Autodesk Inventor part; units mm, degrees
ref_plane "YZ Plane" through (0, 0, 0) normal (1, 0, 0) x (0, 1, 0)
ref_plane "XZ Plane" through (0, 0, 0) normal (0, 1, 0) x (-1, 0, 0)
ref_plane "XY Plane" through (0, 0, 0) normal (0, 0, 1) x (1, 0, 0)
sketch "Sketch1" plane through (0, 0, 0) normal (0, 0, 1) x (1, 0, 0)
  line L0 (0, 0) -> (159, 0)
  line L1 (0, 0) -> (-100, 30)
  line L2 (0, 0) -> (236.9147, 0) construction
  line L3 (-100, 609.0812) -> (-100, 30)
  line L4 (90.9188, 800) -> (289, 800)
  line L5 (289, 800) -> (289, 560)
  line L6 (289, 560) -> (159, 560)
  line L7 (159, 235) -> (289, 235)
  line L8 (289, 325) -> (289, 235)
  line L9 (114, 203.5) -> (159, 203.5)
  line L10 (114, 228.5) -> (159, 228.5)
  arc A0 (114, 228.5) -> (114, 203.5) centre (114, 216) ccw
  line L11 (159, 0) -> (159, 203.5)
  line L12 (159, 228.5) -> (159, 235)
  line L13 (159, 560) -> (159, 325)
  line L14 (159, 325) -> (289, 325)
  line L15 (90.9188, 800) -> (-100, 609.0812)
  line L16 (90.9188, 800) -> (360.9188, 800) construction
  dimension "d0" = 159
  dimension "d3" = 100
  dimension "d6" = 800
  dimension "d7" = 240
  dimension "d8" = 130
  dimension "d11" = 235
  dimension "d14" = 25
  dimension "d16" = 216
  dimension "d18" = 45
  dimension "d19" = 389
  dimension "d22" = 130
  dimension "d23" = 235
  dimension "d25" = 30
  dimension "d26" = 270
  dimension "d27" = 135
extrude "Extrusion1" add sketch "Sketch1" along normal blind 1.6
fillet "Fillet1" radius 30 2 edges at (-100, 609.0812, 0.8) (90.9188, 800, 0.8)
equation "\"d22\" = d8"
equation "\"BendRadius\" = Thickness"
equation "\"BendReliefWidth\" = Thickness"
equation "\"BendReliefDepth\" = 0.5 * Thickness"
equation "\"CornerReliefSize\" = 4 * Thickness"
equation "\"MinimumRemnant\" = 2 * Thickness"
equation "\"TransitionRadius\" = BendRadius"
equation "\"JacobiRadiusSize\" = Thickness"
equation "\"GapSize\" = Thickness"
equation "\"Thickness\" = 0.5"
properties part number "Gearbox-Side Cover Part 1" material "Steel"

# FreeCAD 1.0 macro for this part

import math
import FreeCAD as App
import Part
import Sketcher
from FreeCAD import Vector
Q = App.Units.Quantity


def edges_at(feature, points):
    """Names of the edges that pass closest to the given points."""
    edges = feature.Shape.Edges
    near = lambda p: min(range(len(edges)), key=lambda i: edges[i].distToShape(Part.Vertex(*p))[0])
    return sorted({f"Edge{near(p) + 1}" for p in points})

doc = App.newDocument("Part")
body = doc.addObject("PartDesign::Body", "Body")

sketch1 = body.newObject("Sketcher::SketchObject", "Sketch")
sketch1.AttachmentSupport = (doc.getObject("XY_Plane"), [""])
sketch1.MapMode = "FlatFace"
sketch1.addGeometry([
    Part.LineSegment(Vector(-100, 30, 0), Vector(0, 0, 0)),
    Part.LineSegment(Vector(0, 0, 0), Vector(159, 0, 0)),
    Part.LineSegment(Vector(159, 0, 0), Vector(159, 203.5, 0)),
    Part.LineSegment(Vector(159, 203.5, 0), Vector(114, 203.5, 0)),
    Part.ArcOfCircle(Part.Circle(Vector(114, 216, 0), Vector(0, 0, 1), 12.5), math.radians(90), math.radians(270)),
    Part.LineSegment(Vector(114, 228.5, 0), Vector(159, 228.5, 0)),
    Part.LineSegment(Vector(159, 228.5, 0), Vector(159, 235, 0)),
    Part.LineSegment(Vector(159, 235, 0), Vector(289, 235, 0)),
    Part.LineSegment(Vector(289, 235, 0), Vector(289, 325, 0)),
    Part.LineSegment(Vector(289, 325, 0), Vector(159, 325, 0)),
    Part.LineSegment(Vector(159, 325, 0), Vector(159, 560, 0)),
    Part.LineSegment(Vector(159, 560, 0), Vector(289, 560, 0)),
    Part.LineSegment(Vector(289, 560, 0), Vector(289, 800, 0)),
    Part.LineSegment(Vector(289, 800, 0), Vector(90.9188, 800, 0)),
    Part.LineSegment(Vector(90.9188, 800, 0), Vector(-100, 609.0812, 0)),
    Part.LineSegment(Vector(-100, 609.0812, 0), Vector(-100, 30, 0)),
], False)
sketch1.addConstraint([
    Sketcher.Constraint("Coincident", 0, 2, 1, 1),
    Sketcher.Constraint("Coincident", 1, 2, 2, 1),
    Sketcher.Constraint("Coincident", 2, 2, 3, 1),
    Sketcher.Constraint("Tangent", 3, 2, 4, 2),
    Sketcher.Constraint("Tangent", 4, 1, 5, 1),
    Sketcher.Constraint("Coincident", 5, 2, 6, 1),
    Sketcher.Constraint("Coincident", 6, 2, 7, 1),
    Sketcher.Constraint("Coincident", 7, 2, 8, 1),
    Sketcher.Constraint("Coincident", 8, 2, 9, 1),
    Sketcher.Constraint("Coincident", 9, 2, 10, 1),
    Sketcher.Constraint("Coincident", 10, 2, 11, 1),
    Sketcher.Constraint("Coincident", 11, 2, 12, 1),
    Sketcher.Constraint("Coincident", 12, 2, 13, 1),
    Sketcher.Constraint("Coincident", 13, 2, 14, 1),
    Sketcher.Constraint("Coincident", 14, 2, 15, 1),
    Sketcher.Constraint("Coincident", 15, 2, 0, 1),
    Sketcher.Constraint("Horizontal", 1),
    Sketcher.Constraint("Vertical", 2),
    Sketcher.Constraint("Horizontal", 3),
    Sketcher.Constraint("Horizontal", 5),
    Sketcher.Constraint("Vertical", 6),
    Sketcher.Constraint("Horizontal", 7),
    Sketcher.Constraint("Vertical", 8),
    Sketcher.Constraint("Horizontal", 9),
    Sketcher.Constraint("Vertical", 10),
    Sketcher.Constraint("Horizontal", 11),
    Sketcher.Constraint("Vertical", 12),
    Sketcher.Constraint("Horizontal", 13),
    Sketcher.Constraint("Vertical", 15),
    Sketcher.Constraint("Coincident", 0, 2, -1, 1),
    Sketcher.Constraint("Vertical", 2, 2, 5, 2),
    Sketcher.Constraint("Vertical", 6, 2, 9, 2),
    Sketcher.Constraint("Vertical", 8, 2, 11, 2),
    Sketcher.Constraint("Radius", 4, 12.5),
    Sketcher.Constraint("DistanceX", 1, 1, 1, 2, 159.0),
    Sketcher.Constraint("DistanceX", 3, 2, 3, 1, 45.0),
    Sketcher.Constraint("DistanceX", 7, 1, 7, 2, 130.0),
    Sketcher.Constraint("DistanceY", 10, 1, 10, 2, 235.0),
    Sketcher.Constraint("DistanceY", 12, 1, 12, 2, 240.0),
    Sketcher.Constraint("Angle", 14, Q("-135 deg")),
    Sketcher.Constraint("Distance", 14, 270.0),
    Sketcher.Constraint("DistanceY", -1, 1, 4, 3, 216.0),
    Sketcher.Constraint("DistanceY", -1, 1, 6, 2, 235.0),
    Sketcher.Constraint("DistanceY", -1, 1, 12, 2, 800.0),
    Sketcher.Constraint("DistanceX", 14, 2, -1, 1, 100.0),
    Sketcher.Constraint("DistanceY", -1, 1, 15, 2, 30.0),
])
pad1 = body.newObject("PartDesign::Pad", "Pad")
pad1.Profile = sketch1
pad1.Length = 1.6
doc.recompute()

fillet = body.newObject("PartDesign::Fillet", "Fillet")
fillet.Base = (pad1, edges_at(pad1, [(-100, 609.081, 0.8), (90.919, 800, 0.8)]))
fillet.Radius = 30

doc.recompute()
